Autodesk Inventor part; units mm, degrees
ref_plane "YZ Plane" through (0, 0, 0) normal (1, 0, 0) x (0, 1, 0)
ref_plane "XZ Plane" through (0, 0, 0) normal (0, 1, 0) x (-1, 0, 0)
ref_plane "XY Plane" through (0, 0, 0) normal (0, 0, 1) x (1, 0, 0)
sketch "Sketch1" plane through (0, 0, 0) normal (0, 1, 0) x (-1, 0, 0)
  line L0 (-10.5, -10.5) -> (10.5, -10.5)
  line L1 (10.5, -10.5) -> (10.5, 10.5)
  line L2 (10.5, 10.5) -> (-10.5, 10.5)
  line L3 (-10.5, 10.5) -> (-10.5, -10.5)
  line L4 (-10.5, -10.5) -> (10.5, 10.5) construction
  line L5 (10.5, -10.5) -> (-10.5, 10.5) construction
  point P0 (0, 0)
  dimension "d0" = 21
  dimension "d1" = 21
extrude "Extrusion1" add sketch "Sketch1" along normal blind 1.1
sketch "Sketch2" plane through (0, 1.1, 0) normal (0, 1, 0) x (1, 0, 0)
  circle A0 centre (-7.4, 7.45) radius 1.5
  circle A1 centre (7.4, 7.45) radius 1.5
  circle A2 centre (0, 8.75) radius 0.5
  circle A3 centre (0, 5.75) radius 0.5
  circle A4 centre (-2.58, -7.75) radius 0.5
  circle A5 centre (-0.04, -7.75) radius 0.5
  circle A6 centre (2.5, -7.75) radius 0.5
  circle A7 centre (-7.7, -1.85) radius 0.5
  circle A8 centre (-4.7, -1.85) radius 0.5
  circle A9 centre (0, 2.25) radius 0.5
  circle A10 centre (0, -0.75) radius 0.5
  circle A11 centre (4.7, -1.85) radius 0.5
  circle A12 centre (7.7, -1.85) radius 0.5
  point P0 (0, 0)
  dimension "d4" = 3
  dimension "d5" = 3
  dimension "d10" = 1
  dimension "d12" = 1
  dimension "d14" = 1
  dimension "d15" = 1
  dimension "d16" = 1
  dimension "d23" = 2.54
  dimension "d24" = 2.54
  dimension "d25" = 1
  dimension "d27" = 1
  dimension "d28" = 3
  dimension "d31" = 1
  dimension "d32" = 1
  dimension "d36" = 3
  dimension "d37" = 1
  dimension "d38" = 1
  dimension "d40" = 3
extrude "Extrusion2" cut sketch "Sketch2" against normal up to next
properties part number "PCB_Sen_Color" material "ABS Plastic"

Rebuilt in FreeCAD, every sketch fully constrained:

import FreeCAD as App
import Part
import Sketcher

V = App.Vector

doc = App.newDocument("Part")
params = doc.addObject("Spreadsheet::Sheet", "Params")
for row, (alias, value) in enumerate([
    ("sketch1_width", "21 mm"),
    ("pad1_length", "1.1 mm"),
    ("sketch2_diameter", "3 mm"),
    ("sketch2_diameter2", "1 mm"),
], start=1):
    params.set(f"A{row}", alias)
    params.set(f"B{row}", "=" + value)
    params.setAlias(f"B{row}", alias)

body = doc.addObject("PartDesign::Body", "Body")

# Sketch on XZ plane
sketch1 = body.newObject("Sketcher::SketchObject", "Sketch")
sketch1.AttachmentSupport = (doc.getObject("XZ_Plane"), [""])
sketch1.MapMode = "FlatFace"
sketch1.addGeometry([
    Part.LineSegment(V(10.5, 10.5, 0), V(10.5, -10.5, 0)),
    Part.LineSegment(V(10.5, -10.5, 0), V(-10.5, -10.5, 0)),
    Part.LineSegment(V(-10.5, -10.5, 0), V(-10.5, 10.5, 0)),
    Part.LineSegment(V(-10.5, 10.5, 0), V(10.5, 10.5, 0)),
], False)
sketch1.addConstraint([
    Sketcher.Constraint("Coincident", 0, 2, 1, 1),
    Sketcher.Constraint("Coincident", 1, 2, 2, 1),
    Sketcher.Constraint("Coincident", 2, 2, 3, 1),
    Sketcher.Constraint("Coincident", 3, 2, 0, 1),
    Sketcher.Constraint("Vertical", 0),
    Sketcher.Constraint("Horizontal", 1),
    Sketcher.Constraint("Vertical", 2),
    Sketcher.Constraint("Horizontal", 3),
    Sketcher.Constraint("Symmetric", 0, 2, 2, 2, -1, 1),
    Sketcher.Constraint("Equal", 3, 0),
    Sketcher.Constraint("DistanceX", 1, 2, 1, 1, 21.0),
])
sketch1.setExpression("Constraints[10]", "Params.sketch1_width")
pad1 = body.newObject("PartDesign::Pad", "Pad")
pad1.Profile = sketch1
pad1.setExpression("Length", "Params.pad1_length")
pad1.Reversed = True

# Sketch on XZ plane
sketch2 = body.newObject("Sketcher::SketchObject", "Sketch001")
sketch2.AttachmentSupport = (doc.getObject("XZ_Plane"), [""])
sketch2.MapMode = "FlatFace"
sketch2.AttachmentOffset = App.Placement(V(0, 0, -1.1), App.Rotation())
sketch2.addGeometry([
    Part.Circle(V(-7.4, -7.45, 0), V(0, 0, 1), 1.5),  # 0
    Part.Circle(V(7.4, -7.45, 0), V(0, 0, 1), 1.5),  # 1
    Part.Circle(V(0, -8.75, 0), V(0, 0, 1), 0.5),  # 2
    Part.Circle(V(0, -5.75, 0), V(0, 0, 1), 0.5),  # 3
    Part.Circle(V(-2.58, 7.75, 0), V(0, 0, 1), 0.5),  # 4
    Part.Circle(V(-0.04, 7.75, 0), V(0, 0, 1), 0.5),  # 5
    Part.Circle(V(2.5, 7.75, 0), V(0, 0, 1), 0.5),  # 6
    Part.Circle(V(-7.7, 1.85, 0), V(0, 0, 1), 0.5),  # 7
    Part.Circle(V(-4.7, 1.85, 0), V(0, 0, 1), 0.5),  # 8
    Part.Circle(V(0, -2.25, 0), V(0, 0, 1), 0.5),  # 9
    Part.Circle(V(0, 0.75, 0), V(0, 0, 1), 0.5),  # 10
    Part.Circle(V(4.7, 1.85, 0), V(0, 0, 1), 0.5),  # 11
    Part.Circle(V(7.7, 1.85, 0), V(0, 0, 1), 0.5),  # 12
], False)
sketch2.addConstraint([
    Sketcher.Constraint("Equal", 0, 1),
    Sketcher.Constraint("Equal", 2, 3),
    Sketcher.Constraint("Equal", 3, 4),
    Sketcher.Constraint("Equal", 4, 5),
    Sketcher.Constraint("Equal", 5, 6),
    Sketcher.Constraint("Equal", 6, 7),
    Sketcher.Constraint("Equal", 7, 8),
    Sketcher.Constraint("Equal", 8, 9),
    Sketcher.Constraint("Equal", 9, 10),
    Sketcher.Constraint("Equal", 10, 11),
    Sketcher.Constraint("Equal", 11, 12),
    Sketcher.Constraint("Symmetric", 0, 3, 1, 3, -2),
    Sketcher.Constraint("Symmetric", 8, 3, 11, 3, -2),
    Sketcher.Constraint("Symmetric", 7, 3, 12, 3, -2),
    Sketcher.Constraint("PointOnObject", 2, 3, -2),
    Sketcher.Constraint("PointOnObject", 3, 3, -2),
    Sketcher.Constraint("PointOnObject", 9, 3, -2),
    Sketcher.Constraint("PointOnObject", 10, 3, -2),
    Sketcher.Constraint("Horizontal", 4, 3, 5, 3),
    Sketcher.Constraint("Horizontal", 5, 3, 6, 3),
    Sketcher.Constraint("Horizontal", 7, 3, 8, 3),
    Sketcher.Constraint("Diameter", 0, 3.0),
    Sketcher.Constraint("Diameter", 2, 1.0),
    Sketcher.Constraint("DistanceY", 2, 3, 3, 3, 3.0),
    Sketcher.Constraint("DistanceX", 7, 3, 8, 3, 3.0),
    Sketcher.Constraint("DistanceY", 9, 3, 10, 3, 3.0),
    Sketcher.Constraint("DistanceX", 4, 3, 5, 3, 2.54),
    Sketcher.Constraint("DistanceX", 5, 3, 6, 3, 2.54),
    Sketcher.Constraint("DistanceY", 10, 3, 5, 3, 7.0),
    Sketcher.Constraint("DistanceX", 0, 3, -1, 1, 7.4),
    Sketcher.Constraint("DistanceX", -1, 1, 6, 3, 2.5),
    Sketcher.Constraint("DistanceX", 7, 3, -1, 1, 7.7),
    Sketcher.Constraint("DistanceY", 2, 3, 0, 3, 1.3),
    Sketcher.Constraint("DistanceY", 3, 3, 4, 3, 13.5),
    Sketcher.Constraint("DistanceY", 7, 3, 4, 3, 5.9),
    Sketcher.Constraint("DistanceY", 0, 3, -1, 1, 7.45),
])
sketch2.setExpression("Constraints[21]", "Params.sketch2_diameter")
sketch2.setExpression("Constraints[22]", "Params.sketch2_diameter2")
pocket1 = body.newObject("PartDesign::Pocket", "Pocket")
pocket1.Profile = sketch2
pocket1.Type = "UpToFirst"
pocket1.Reversed = True

doc.recompute()
